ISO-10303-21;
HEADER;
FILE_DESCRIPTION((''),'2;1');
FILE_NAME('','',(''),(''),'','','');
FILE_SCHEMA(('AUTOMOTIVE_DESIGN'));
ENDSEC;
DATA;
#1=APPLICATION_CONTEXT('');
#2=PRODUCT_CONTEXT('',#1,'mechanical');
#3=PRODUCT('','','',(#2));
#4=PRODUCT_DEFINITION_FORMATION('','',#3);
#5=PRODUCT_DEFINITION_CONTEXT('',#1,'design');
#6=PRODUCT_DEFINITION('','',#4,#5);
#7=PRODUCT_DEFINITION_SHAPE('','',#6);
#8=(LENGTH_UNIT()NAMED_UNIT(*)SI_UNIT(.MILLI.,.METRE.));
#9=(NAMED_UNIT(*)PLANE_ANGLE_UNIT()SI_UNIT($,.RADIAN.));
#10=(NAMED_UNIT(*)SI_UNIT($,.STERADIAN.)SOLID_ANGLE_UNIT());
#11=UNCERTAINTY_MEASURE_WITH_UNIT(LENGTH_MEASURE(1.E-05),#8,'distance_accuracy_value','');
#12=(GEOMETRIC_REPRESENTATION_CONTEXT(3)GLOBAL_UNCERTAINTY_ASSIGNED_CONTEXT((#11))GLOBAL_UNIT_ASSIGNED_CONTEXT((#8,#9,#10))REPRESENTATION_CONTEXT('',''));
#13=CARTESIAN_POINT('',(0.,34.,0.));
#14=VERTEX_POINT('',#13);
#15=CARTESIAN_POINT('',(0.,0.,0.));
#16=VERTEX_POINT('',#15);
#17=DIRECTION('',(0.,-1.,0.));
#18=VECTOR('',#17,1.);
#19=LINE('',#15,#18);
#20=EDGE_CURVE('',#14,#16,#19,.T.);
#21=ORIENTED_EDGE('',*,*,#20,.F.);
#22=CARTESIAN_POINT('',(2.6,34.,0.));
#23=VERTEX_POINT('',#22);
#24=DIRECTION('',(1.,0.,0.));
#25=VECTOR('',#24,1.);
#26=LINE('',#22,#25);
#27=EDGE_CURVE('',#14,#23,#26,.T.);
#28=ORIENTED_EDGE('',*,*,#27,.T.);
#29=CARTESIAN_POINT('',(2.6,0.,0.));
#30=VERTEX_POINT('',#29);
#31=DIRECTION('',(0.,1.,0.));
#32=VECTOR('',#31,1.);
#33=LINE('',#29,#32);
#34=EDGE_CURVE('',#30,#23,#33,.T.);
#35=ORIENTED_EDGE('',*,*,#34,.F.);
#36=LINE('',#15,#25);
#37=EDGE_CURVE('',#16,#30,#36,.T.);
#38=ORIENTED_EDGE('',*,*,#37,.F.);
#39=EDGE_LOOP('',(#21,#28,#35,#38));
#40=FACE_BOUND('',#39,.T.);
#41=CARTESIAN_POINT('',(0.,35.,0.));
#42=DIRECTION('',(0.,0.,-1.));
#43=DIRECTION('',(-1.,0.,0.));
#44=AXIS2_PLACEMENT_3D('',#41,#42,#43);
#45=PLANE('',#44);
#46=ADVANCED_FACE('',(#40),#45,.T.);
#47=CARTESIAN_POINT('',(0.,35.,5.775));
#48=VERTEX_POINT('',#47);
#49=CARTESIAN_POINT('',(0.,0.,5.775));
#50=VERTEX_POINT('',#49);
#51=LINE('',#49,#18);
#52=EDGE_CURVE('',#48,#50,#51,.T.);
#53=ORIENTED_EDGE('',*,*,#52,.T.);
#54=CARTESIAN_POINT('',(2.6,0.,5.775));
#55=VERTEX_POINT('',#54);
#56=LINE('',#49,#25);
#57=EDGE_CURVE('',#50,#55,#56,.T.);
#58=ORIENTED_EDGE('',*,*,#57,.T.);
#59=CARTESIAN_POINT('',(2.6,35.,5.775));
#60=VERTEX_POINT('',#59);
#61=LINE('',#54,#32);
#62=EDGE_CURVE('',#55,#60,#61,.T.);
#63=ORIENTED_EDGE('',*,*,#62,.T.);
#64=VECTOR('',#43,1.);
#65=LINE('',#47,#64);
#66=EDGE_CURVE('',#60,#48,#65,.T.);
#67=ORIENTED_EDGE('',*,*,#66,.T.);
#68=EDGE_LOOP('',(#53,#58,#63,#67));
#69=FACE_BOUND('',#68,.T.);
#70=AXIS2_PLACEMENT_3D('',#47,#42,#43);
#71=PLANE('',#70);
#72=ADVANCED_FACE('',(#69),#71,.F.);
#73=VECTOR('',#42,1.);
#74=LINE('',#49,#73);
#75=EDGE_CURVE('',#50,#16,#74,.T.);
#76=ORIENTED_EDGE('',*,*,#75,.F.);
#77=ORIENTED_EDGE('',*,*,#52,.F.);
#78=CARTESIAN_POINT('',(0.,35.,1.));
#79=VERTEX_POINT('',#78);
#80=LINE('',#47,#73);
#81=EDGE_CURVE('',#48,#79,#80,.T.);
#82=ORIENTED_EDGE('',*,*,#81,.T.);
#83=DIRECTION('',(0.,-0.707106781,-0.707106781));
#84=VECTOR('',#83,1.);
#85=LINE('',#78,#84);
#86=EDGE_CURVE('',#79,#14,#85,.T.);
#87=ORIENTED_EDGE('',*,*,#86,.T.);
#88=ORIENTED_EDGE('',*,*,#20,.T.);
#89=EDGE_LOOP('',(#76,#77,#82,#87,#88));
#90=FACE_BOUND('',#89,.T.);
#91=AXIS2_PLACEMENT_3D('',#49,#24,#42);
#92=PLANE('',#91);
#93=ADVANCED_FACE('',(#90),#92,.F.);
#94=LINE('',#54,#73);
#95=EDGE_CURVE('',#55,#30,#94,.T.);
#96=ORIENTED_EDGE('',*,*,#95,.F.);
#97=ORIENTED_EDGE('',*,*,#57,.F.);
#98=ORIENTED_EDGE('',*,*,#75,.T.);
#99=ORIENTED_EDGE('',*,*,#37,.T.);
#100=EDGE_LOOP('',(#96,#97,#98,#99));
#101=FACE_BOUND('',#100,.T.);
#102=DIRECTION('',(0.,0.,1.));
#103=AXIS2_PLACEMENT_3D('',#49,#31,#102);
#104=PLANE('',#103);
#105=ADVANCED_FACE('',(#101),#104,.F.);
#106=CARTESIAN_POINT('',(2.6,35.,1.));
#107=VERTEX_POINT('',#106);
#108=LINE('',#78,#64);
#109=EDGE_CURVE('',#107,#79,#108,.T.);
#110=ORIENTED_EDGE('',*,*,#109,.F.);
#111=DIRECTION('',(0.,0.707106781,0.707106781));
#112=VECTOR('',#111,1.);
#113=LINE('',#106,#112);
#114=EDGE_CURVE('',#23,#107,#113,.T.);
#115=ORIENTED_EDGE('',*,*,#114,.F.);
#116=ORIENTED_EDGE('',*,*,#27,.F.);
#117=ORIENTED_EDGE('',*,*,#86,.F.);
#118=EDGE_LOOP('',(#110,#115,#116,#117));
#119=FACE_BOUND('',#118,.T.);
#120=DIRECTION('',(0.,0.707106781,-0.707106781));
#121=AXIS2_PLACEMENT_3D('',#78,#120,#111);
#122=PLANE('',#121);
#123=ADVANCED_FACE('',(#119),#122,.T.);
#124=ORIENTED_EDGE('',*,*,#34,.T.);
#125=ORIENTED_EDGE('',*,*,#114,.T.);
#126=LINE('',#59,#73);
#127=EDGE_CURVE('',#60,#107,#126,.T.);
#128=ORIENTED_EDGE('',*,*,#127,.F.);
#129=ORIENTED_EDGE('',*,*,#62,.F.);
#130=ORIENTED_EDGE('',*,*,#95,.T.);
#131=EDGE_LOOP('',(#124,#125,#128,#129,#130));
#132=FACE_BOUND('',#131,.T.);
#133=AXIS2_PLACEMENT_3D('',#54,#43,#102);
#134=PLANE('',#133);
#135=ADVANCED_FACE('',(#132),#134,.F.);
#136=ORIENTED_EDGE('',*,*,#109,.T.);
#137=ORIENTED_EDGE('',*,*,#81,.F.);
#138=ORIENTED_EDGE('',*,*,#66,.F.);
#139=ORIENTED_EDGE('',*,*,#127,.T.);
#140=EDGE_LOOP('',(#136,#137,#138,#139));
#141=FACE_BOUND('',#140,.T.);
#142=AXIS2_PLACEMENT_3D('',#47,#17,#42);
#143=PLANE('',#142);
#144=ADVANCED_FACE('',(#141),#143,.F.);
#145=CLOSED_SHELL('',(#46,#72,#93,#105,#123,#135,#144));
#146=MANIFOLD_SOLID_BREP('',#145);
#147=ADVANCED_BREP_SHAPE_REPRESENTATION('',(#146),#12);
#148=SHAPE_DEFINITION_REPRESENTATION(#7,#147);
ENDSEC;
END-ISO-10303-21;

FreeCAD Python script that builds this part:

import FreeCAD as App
import Part
import Sketcher

V = App.Vector


def edges_at(feature, points):
    """Names of the edges that pass closest to the given points."""
    edges = feature.Shape.Edges
    near = lambda p: min(range(len(edges)), key=lambda i: edges[i].distToShape(Part.Vertex(*p))[0])
    return sorted({f"Edge{near(p) + 1}" for p in points})


def add_polygon(sketch, points):
    """Adds a closed chain of lines whose ends are joined by coincident constraints."""
    first, n = sketch.GeometryCount, len(points)
    for a, b in zip(points, points[1:] + points[:1]):
        sketch.addGeometry(Part.LineSegment(App.Vector(*a, 0), App.Vector(*b, 0)), False)
    for i in range(n):
        sketch.addConstraint(Sketcher.Constraint("Coincident", first + i, 2, first + (i + 1) % n, 1))

doc = App.newDocument("Part")
body = doc.addObject("PartDesign::Body", "Body")

# Sketch on XY plane
sketch1 = body.newObject("Sketcher::SketchObject", "Sketch")
sketch1.AttachmentSupport = (doc.getObject("XY_Plane"), [""])
sketch1.MapMode = "FlatFace"
add_polygon(sketch1, [(0, 35), (0, 0), (2.6, 0), (2.6, 35)])  # lines 0-3
sketch1.addConstraint([
    Sketcher.Constraint("Vertical", 0),
    Sketcher.Constraint("Horizontal", 1),
    Sketcher.Constraint("Vertical", 2),
    Sketcher.Constraint("Horizontal", 3),
    Sketcher.Constraint("Coincident", 0, 2, -1, 1),
    Sketcher.Constraint("DistanceY", 0, 2, 0, 1, 35.0),
    Sketcher.Constraint("DistanceX", 1, 1, 1, 2, 2.6),
])
pad1 = body.newObject("PartDesign::Pad", "Pad")
pad1.Profile = sketch1
pad1.Length = 5.775
doc.recompute()

chamfer = body.newObject("PartDesign::Chamfer", "Chamfer")
chamfer.Base = (pad1, edges_at(pad1, [(1.3, 35, 0)]))
chamfer.Size = 1

doc.recompute()
